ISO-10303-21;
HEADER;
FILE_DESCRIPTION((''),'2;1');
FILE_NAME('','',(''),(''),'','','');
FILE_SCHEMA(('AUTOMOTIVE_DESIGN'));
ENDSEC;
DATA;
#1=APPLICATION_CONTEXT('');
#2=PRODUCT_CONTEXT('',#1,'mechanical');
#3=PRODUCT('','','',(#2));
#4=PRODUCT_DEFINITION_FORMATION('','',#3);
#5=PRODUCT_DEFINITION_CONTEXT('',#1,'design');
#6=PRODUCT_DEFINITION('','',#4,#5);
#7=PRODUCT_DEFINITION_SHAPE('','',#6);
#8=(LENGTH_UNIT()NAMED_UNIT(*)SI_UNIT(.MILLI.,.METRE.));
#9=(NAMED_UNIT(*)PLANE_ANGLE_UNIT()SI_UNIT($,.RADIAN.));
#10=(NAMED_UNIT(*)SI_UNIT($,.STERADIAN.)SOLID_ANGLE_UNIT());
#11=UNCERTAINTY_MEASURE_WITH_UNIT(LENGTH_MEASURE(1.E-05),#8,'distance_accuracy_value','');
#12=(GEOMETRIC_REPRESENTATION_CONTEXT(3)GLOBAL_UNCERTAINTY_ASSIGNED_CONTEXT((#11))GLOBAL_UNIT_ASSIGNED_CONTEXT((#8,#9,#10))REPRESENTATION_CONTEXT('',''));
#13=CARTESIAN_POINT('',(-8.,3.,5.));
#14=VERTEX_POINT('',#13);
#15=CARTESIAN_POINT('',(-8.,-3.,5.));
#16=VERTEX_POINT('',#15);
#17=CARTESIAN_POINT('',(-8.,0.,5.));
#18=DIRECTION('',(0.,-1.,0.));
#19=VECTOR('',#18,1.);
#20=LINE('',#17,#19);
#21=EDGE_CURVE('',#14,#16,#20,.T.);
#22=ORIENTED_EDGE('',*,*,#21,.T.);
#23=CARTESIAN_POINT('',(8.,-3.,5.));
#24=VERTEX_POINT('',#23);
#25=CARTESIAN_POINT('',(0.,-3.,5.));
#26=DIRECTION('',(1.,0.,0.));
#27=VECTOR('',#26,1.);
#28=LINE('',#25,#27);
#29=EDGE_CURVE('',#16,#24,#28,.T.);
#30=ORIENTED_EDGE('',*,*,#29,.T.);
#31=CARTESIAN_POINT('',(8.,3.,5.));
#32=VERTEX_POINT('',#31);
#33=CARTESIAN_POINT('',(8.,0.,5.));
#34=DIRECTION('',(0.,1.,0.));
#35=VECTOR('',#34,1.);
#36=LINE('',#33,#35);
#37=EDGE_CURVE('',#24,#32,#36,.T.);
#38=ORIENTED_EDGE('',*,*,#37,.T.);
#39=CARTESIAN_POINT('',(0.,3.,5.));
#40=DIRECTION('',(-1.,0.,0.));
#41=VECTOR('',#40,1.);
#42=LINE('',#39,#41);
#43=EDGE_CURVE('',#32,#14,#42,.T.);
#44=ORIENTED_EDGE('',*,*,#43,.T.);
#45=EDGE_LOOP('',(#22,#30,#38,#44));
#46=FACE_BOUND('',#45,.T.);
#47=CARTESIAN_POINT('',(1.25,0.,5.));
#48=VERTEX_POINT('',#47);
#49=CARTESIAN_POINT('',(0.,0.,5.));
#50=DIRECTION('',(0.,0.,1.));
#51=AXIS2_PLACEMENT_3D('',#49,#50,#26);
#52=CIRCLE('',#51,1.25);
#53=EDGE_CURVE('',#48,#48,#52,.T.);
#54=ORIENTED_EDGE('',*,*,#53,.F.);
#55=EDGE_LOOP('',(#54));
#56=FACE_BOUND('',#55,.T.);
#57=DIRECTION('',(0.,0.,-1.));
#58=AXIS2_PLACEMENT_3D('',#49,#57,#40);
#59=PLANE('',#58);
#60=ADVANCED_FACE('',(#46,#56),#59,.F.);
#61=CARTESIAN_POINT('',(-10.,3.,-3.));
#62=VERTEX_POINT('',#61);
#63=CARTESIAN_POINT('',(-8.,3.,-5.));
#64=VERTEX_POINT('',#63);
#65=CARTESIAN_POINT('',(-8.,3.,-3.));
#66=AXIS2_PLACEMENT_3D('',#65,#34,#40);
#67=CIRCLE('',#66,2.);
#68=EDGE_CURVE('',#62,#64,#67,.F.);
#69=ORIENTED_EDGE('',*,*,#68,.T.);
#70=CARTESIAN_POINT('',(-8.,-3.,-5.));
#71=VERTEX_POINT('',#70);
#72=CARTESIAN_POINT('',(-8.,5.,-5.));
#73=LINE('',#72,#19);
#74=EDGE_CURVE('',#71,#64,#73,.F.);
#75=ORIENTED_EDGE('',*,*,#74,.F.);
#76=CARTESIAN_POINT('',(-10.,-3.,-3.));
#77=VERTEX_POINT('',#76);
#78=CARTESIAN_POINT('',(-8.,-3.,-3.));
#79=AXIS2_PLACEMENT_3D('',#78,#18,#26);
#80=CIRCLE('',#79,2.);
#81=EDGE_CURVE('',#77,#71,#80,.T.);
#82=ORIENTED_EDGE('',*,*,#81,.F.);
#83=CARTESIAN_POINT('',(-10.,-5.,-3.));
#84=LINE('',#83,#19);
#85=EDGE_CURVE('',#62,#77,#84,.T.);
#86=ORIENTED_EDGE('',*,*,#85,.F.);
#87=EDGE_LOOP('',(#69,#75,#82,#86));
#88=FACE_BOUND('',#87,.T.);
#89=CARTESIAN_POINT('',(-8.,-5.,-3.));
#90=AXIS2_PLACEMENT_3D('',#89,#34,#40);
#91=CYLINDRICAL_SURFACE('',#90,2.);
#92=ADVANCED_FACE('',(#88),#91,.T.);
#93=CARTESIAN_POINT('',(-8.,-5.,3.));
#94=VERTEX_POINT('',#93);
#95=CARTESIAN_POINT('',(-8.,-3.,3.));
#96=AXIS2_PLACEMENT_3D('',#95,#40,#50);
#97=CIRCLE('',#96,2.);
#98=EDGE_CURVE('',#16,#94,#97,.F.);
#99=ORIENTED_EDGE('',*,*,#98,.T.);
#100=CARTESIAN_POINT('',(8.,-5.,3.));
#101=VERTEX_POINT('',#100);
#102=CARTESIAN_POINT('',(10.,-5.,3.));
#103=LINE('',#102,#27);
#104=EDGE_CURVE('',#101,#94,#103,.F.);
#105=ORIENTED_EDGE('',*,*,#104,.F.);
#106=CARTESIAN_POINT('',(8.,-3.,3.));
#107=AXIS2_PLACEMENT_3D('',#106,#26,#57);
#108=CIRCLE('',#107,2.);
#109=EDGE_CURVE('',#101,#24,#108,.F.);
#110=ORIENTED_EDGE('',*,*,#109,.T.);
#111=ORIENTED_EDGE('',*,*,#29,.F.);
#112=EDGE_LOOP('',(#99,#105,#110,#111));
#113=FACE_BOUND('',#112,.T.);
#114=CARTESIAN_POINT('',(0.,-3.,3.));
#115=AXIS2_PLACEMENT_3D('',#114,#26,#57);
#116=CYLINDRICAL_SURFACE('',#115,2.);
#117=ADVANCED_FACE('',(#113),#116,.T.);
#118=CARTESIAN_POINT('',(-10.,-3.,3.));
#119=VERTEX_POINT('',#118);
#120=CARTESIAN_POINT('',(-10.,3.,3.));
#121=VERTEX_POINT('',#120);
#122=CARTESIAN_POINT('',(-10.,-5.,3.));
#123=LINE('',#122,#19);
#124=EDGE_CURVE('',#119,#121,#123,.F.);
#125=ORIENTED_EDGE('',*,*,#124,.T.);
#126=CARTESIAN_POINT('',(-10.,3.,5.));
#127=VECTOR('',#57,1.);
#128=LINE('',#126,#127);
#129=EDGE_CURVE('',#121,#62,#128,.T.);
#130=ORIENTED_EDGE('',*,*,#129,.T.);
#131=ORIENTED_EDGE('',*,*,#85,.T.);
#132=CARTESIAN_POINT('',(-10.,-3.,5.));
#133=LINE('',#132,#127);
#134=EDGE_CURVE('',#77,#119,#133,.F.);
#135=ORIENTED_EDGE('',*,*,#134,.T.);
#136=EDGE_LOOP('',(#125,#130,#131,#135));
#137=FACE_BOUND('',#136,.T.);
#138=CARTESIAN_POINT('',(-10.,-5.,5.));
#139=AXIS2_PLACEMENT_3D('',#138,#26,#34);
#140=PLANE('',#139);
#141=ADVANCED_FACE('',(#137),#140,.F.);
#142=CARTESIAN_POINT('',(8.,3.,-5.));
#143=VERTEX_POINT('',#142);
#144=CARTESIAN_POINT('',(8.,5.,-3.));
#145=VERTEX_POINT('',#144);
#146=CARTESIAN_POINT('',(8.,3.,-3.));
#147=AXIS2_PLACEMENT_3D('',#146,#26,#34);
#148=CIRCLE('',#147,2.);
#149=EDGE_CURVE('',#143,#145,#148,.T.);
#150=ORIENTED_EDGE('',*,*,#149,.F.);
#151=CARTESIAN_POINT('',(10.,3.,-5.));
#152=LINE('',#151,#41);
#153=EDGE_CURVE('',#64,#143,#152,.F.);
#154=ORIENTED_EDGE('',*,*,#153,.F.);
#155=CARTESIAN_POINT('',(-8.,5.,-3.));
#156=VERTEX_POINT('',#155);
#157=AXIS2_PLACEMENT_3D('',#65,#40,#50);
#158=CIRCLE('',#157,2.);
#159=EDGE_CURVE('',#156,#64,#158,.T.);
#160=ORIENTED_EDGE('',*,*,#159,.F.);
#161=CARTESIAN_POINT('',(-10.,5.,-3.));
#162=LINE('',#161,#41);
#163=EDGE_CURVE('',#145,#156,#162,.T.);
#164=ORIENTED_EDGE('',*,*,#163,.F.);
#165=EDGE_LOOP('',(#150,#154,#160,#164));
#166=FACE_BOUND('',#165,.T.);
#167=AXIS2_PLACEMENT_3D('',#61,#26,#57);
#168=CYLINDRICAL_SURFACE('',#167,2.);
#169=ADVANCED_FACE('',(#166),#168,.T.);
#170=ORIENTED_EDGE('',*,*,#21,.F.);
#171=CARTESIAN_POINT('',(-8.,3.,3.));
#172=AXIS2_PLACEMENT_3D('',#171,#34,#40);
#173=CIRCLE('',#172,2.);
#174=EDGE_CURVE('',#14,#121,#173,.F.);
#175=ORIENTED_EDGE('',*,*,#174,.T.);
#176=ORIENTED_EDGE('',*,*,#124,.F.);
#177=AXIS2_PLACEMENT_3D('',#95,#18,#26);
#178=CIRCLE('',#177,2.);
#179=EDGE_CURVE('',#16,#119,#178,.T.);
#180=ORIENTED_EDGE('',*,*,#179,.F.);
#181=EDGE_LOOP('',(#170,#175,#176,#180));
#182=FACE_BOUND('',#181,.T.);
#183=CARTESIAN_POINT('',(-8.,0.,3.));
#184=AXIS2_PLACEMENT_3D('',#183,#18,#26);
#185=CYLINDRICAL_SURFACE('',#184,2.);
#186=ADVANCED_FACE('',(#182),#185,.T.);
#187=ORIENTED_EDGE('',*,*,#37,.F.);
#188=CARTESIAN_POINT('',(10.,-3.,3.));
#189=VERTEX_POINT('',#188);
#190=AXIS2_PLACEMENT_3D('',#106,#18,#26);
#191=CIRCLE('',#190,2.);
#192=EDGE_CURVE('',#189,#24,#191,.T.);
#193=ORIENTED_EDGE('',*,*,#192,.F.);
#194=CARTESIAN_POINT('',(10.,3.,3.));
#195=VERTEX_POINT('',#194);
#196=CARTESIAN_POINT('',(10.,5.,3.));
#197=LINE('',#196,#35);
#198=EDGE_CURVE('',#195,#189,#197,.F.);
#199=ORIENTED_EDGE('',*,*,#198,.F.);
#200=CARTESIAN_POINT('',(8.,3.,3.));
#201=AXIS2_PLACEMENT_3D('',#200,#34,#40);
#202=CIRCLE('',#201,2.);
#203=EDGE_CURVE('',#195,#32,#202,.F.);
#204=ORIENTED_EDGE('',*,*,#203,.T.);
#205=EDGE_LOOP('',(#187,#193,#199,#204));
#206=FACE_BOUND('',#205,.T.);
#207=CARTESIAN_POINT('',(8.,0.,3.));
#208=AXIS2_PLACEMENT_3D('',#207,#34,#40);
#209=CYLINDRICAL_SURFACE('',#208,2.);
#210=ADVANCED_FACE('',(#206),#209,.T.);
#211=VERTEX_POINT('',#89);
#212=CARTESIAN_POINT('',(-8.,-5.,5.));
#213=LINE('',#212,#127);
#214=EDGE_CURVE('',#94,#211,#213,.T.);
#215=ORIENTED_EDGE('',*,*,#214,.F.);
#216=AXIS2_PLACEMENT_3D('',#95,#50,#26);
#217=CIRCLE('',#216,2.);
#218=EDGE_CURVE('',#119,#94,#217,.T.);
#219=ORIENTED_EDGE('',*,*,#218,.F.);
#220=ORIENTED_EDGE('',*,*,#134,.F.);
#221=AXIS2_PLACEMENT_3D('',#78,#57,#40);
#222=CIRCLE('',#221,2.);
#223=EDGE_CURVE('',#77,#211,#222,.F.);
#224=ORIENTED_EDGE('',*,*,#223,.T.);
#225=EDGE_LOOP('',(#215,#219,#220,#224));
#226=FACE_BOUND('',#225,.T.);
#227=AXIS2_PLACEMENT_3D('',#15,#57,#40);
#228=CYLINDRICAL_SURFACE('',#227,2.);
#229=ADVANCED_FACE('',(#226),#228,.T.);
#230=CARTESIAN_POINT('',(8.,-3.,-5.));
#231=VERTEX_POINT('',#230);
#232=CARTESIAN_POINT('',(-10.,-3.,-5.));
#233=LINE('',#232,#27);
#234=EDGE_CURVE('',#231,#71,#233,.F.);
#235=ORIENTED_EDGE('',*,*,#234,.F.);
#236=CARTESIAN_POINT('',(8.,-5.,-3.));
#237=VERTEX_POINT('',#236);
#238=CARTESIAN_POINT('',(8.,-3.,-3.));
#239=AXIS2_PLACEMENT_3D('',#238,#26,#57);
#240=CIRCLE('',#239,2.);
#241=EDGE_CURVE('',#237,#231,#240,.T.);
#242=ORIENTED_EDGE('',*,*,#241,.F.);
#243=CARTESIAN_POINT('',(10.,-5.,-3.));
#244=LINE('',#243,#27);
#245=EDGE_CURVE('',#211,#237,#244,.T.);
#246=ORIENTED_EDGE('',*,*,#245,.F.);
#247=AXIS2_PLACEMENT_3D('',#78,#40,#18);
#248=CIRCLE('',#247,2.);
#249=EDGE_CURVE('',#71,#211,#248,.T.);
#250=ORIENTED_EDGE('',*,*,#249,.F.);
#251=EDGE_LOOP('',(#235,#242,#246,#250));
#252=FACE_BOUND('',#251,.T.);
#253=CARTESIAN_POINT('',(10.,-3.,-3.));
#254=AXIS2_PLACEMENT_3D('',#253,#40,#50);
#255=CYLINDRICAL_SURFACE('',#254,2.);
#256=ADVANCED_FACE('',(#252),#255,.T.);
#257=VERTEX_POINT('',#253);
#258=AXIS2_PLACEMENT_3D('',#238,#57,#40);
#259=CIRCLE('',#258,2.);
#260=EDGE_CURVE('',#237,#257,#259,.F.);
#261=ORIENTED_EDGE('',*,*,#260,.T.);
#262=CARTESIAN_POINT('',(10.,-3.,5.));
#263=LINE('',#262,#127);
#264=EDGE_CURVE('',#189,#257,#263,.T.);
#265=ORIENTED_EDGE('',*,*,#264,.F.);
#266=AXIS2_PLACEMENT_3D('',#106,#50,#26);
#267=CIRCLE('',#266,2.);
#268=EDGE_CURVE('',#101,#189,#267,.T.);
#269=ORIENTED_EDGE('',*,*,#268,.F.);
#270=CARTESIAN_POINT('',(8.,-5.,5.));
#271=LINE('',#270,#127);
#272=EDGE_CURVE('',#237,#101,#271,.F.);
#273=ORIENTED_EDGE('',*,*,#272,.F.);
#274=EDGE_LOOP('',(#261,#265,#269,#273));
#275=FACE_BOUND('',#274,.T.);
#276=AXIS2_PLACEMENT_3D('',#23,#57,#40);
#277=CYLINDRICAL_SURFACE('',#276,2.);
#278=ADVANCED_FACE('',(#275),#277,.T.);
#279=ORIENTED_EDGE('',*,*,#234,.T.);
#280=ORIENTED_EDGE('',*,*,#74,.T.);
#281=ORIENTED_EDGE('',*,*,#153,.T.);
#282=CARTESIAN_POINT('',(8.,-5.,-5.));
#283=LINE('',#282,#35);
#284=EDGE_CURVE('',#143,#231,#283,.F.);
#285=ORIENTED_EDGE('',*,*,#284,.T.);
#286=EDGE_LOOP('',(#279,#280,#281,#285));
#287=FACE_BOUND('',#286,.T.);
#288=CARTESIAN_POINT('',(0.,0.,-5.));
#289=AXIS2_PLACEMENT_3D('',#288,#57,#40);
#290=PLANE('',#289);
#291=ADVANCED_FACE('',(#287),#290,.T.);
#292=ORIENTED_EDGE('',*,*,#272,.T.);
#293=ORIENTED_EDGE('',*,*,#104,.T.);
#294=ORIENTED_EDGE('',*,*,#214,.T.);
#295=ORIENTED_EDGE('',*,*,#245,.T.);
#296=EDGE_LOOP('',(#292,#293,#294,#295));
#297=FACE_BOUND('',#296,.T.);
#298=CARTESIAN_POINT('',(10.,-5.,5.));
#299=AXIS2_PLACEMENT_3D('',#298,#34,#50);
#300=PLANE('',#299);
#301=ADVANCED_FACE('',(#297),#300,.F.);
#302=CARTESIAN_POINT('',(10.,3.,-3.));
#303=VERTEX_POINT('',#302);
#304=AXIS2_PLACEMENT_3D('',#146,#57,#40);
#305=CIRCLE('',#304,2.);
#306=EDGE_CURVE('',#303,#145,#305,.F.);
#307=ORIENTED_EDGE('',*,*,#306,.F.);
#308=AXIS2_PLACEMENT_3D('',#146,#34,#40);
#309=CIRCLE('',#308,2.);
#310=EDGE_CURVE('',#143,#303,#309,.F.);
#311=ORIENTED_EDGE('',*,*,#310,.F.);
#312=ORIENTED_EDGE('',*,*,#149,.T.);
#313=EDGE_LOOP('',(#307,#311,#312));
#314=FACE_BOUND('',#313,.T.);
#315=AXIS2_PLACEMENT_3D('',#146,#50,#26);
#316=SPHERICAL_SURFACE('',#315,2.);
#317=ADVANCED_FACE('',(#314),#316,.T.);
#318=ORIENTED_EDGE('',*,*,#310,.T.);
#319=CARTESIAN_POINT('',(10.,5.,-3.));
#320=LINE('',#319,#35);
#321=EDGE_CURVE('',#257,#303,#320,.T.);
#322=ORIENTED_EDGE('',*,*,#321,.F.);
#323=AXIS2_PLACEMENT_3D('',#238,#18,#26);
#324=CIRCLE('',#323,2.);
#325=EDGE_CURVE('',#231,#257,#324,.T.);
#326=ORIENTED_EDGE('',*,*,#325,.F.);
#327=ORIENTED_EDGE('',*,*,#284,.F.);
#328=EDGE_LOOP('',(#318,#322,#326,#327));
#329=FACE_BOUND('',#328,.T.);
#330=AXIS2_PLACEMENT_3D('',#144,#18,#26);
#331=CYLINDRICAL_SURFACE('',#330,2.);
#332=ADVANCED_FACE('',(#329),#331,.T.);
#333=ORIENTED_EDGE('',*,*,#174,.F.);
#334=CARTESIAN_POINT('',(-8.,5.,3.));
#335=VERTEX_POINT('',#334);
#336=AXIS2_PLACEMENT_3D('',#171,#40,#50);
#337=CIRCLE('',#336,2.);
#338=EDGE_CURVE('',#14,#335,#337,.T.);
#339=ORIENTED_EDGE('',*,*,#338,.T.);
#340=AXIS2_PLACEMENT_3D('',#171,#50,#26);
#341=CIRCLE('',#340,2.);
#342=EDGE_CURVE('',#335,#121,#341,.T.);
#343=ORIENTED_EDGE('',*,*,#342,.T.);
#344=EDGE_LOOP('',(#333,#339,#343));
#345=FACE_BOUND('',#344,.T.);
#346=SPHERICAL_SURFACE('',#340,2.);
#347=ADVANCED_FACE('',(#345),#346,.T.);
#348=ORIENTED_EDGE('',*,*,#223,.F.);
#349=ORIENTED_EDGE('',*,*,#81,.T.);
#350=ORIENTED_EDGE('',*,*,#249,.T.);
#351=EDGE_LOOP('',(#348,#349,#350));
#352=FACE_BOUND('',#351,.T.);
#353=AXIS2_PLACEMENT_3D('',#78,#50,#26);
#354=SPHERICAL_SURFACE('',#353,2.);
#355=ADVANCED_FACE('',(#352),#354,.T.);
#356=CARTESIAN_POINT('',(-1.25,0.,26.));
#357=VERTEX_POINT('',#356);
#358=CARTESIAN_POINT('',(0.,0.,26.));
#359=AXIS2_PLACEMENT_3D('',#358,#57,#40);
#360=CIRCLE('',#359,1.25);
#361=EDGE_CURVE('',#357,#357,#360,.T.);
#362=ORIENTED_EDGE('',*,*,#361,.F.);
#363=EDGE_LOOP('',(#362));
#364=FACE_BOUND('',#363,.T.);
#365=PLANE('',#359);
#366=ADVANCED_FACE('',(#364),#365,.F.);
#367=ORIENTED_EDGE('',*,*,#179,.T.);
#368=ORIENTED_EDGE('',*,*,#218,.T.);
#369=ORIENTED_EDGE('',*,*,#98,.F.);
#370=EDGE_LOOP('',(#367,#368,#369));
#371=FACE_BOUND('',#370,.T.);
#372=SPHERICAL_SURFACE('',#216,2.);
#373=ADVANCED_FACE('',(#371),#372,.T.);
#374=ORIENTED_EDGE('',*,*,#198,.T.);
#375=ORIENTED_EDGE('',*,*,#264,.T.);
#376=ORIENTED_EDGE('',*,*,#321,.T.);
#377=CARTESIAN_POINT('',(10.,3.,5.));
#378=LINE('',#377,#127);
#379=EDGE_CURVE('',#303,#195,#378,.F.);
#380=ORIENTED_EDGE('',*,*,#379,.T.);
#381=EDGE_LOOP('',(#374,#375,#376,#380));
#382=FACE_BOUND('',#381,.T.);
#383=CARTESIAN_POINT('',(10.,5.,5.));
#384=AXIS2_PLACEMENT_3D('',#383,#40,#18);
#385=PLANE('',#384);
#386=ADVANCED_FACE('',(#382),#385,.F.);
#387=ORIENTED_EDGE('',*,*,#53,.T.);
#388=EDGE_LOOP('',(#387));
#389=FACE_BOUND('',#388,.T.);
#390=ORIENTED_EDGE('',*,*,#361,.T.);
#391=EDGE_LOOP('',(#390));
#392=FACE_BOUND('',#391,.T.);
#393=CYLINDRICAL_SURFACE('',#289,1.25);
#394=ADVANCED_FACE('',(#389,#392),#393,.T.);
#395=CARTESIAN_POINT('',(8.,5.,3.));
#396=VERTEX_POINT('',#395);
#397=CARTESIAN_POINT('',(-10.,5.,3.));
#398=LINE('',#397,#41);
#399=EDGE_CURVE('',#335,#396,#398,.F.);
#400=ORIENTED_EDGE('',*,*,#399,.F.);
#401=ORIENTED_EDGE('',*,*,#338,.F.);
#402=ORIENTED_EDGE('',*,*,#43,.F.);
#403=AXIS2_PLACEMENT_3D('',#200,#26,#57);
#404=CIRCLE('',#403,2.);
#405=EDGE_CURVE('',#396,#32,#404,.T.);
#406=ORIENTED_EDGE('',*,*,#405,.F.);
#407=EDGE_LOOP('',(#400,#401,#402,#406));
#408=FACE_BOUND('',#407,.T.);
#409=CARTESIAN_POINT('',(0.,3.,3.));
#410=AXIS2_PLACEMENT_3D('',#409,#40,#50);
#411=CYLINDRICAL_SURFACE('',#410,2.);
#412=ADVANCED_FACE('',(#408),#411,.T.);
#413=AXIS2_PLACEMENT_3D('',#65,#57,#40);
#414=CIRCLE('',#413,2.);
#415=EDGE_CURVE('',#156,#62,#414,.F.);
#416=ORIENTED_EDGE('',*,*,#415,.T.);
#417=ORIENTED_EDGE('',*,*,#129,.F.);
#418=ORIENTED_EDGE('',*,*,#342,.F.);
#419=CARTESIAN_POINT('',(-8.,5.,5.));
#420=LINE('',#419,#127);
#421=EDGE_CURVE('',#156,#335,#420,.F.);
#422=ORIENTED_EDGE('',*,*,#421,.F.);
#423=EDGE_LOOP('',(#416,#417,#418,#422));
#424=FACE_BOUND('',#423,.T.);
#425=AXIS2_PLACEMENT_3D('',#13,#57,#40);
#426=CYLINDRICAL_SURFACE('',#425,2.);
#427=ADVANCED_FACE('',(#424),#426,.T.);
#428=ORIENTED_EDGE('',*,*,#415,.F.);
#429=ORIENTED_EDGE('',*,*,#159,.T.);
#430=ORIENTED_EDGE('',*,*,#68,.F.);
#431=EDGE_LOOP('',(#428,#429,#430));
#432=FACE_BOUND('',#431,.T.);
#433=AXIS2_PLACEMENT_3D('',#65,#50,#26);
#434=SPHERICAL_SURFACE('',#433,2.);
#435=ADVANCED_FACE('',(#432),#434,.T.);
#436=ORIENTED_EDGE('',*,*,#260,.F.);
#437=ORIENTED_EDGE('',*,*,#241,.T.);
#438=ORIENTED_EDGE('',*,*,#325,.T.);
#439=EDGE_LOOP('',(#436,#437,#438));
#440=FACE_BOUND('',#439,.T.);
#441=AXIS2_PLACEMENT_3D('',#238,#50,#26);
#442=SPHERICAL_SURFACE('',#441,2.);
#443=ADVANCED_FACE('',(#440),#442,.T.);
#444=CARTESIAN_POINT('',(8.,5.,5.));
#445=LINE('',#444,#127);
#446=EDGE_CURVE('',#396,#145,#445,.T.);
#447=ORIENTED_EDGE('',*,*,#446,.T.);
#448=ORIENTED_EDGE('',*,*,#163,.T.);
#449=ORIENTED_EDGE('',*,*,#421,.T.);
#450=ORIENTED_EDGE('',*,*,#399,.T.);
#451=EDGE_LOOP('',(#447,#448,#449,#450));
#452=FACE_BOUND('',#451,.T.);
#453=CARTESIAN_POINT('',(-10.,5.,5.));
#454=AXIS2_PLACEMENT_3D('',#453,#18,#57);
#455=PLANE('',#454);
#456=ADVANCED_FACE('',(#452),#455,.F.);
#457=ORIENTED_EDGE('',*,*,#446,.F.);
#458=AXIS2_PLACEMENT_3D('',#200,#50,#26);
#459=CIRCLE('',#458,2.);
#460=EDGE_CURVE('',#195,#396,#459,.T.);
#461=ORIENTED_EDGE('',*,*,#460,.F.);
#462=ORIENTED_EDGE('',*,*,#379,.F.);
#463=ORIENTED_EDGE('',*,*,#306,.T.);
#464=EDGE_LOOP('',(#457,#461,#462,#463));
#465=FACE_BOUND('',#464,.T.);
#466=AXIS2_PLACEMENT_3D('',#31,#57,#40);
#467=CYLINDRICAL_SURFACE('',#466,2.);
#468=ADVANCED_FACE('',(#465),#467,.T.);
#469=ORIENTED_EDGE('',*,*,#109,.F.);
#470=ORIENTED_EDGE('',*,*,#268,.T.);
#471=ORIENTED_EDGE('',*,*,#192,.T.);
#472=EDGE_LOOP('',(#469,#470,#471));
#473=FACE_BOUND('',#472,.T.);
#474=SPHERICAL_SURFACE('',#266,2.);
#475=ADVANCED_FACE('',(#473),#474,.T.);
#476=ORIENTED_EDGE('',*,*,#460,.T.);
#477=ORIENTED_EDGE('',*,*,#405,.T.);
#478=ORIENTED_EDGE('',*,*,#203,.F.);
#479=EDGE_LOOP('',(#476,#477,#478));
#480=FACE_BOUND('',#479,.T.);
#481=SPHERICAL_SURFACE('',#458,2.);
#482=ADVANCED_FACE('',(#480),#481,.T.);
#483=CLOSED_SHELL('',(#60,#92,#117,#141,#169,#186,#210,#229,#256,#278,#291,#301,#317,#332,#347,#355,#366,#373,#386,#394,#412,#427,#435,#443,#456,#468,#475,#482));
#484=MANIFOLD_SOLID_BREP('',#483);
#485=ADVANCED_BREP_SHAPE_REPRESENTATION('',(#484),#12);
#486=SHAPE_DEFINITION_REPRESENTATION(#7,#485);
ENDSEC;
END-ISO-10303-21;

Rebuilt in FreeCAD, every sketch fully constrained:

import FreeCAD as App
import Part
import Sketcher
Q = App.Units.Quantity


def edges_at(feature, points):
    """Names of the edges that pass closest to the given points."""
    edges = feature.Shape.Edges
    near = lambda p: min(range(len(edges)), key=lambda i: edges[i].distToShape(Part.Vertex(*p))[0])
    return sorted({f"Edge{near(p) + 1}" for p in points})


def add_polygon(sketch, points):
    """Adds a closed chain of lines whose ends are joined by coincident constraints."""
    first, n = sketch.GeometryCount, len(points)
    for a, b in zip(points, points[1:] + points[:1]):
        sketch.addGeometry(Part.LineSegment(App.Vector(*a, 0), App.Vector(*b, 0)), False)
    for i in range(n):
        sketch.addConstraint(Sketcher.Constraint("Coincident", first + i, 2, first + (i + 1) % n, 1))

doc = App.newDocument("Part")
body = doc.addObject("PartDesign::Body", "Body")

# Sketch on XY plane
sketch1 = body.newObject("Sketcher::SketchObject", "Sketch")
sketch1.AttachmentSupport = (doc.getObject("XY_Plane"), [""])
sketch1.MapMode = "FlatFace"
add_polygon(sketch1, [(-10, 5), (-10, -5), (10, -5), (10, 5)])  # lines 0-3
sketch1.addConstraint(Sketcher.Constraint("Vertical", 0))
sketch1.addConstraint(Sketcher.Constraint("Horizontal", 1))
sketch1.addConstraint(Sketcher.Constraint("Vertical", 2))
sketch1.addConstraint(Sketcher.Constraint("Horizontal", 3))
sketch1.addConstraint(Sketcher.Constraint("Symmetric", 0, 2, 2, 2, -1, 1))
sketch1.addConstraint(Sketcher.Constraint("DistanceX", 1, 1, 1, 2, Q("20 mm")))
sketch1.addConstraint(Sketcher.Constraint("DistanceY", 0, 2, 0, 1, Q("10 mm")))
pad1 = body.newObject("PartDesign::Pad", "Pad")
pad1.Profile = sketch1
pad1.Length = 10
pad1.Midplane = True

# Sketch on XY plane
sketch2 = body.newObject("Sketcher::SketchObject", "Sketch001")
sketch2.AttachmentSupport = (doc.getObject("XY_Plane"), [""])
sketch2.MapMode = "FlatFace"
sketch2.addGeometry(Part.Circle(App.Vector(0, 0, 0), App.Vector(0, 0, 1), 1.2), False)
sketch2.addConstraint(Sketcher.Constraint("Coincident", 0, 3, -1, 1))
sketch2.addConstraint(Sketcher.Constraint("Diameter", 0, Q("2.5 mm")))
pocket1 = body.newObject("PartDesign::Pocket", "Pocket")
pocket1.Profile = sketch2
pocket1.Type = "ThroughAll"
pocket1.Midplane = True
doc.recompute()

fillet = body.newObject("PartDesign::Fillet", "Fillet")
fillet.Base = (pocket1, edges_at(pocket1, [
    (10, 0, 5),
    (0, 5, 5),
    (-10, 0, 5),
    (0, 5, -5),
    (10, 0, -5),
    (0, -5, -5),
    (-10, 0, -5),
    (-10, 5, 0),
    (10, 5, 0),
    (10, -5, 0),
    (-10, -5, 0),
    (0, -5, 5),
]))
fillet.Radius = 2

# Sketch on XZ plane
sketch3 = body.newObject("Sketcher::SketchObject", "Sketch002")
sketch3.AttachmentSupport = (doc.getObject("XZ_Plane"), [""])
sketch3.MapMode = "FlatFace"
add_polygon(sketch3, [(0, -5), (0, 26), (1.2, 26), (1.2, -5)])  # lines 0-3
sketch3.addConstraint(Sketcher.Constraint("Vertical", 0))
sketch3.addConstraint(Sketcher.Constraint("Horizontal", 1))
sketch3.addConstraint(Sketcher.Constraint("Vertical", 2))
sketch3.addConstraint(Sketcher.Constraint("Horizontal", 3))
sketch3.addConstraint(Sketcher.Constraint("PointOnObject", 0, 2, -2))
sketch3.addConstraint(Sketcher.Constraint("DistanceY", 0, 1, 0, 2, Q("31 mm")))
sketch3.addConstraint(Sketcher.Constraint("DistanceY", -1, 1, 0, 2, Q("26 mm")))
sketch3.addConstraint(Sketcher.Constraint("DistanceX", 1, 1, 1, 2, Q("1.25 mm")))
revolution = body.newObject("PartDesign::Revolution", "Revolution")
revolution.Profile = sketch3
revolution.ReferenceAxis = (sketch3, ["V_Axis"])
revolution.Angle = 360

doc.recompute()
